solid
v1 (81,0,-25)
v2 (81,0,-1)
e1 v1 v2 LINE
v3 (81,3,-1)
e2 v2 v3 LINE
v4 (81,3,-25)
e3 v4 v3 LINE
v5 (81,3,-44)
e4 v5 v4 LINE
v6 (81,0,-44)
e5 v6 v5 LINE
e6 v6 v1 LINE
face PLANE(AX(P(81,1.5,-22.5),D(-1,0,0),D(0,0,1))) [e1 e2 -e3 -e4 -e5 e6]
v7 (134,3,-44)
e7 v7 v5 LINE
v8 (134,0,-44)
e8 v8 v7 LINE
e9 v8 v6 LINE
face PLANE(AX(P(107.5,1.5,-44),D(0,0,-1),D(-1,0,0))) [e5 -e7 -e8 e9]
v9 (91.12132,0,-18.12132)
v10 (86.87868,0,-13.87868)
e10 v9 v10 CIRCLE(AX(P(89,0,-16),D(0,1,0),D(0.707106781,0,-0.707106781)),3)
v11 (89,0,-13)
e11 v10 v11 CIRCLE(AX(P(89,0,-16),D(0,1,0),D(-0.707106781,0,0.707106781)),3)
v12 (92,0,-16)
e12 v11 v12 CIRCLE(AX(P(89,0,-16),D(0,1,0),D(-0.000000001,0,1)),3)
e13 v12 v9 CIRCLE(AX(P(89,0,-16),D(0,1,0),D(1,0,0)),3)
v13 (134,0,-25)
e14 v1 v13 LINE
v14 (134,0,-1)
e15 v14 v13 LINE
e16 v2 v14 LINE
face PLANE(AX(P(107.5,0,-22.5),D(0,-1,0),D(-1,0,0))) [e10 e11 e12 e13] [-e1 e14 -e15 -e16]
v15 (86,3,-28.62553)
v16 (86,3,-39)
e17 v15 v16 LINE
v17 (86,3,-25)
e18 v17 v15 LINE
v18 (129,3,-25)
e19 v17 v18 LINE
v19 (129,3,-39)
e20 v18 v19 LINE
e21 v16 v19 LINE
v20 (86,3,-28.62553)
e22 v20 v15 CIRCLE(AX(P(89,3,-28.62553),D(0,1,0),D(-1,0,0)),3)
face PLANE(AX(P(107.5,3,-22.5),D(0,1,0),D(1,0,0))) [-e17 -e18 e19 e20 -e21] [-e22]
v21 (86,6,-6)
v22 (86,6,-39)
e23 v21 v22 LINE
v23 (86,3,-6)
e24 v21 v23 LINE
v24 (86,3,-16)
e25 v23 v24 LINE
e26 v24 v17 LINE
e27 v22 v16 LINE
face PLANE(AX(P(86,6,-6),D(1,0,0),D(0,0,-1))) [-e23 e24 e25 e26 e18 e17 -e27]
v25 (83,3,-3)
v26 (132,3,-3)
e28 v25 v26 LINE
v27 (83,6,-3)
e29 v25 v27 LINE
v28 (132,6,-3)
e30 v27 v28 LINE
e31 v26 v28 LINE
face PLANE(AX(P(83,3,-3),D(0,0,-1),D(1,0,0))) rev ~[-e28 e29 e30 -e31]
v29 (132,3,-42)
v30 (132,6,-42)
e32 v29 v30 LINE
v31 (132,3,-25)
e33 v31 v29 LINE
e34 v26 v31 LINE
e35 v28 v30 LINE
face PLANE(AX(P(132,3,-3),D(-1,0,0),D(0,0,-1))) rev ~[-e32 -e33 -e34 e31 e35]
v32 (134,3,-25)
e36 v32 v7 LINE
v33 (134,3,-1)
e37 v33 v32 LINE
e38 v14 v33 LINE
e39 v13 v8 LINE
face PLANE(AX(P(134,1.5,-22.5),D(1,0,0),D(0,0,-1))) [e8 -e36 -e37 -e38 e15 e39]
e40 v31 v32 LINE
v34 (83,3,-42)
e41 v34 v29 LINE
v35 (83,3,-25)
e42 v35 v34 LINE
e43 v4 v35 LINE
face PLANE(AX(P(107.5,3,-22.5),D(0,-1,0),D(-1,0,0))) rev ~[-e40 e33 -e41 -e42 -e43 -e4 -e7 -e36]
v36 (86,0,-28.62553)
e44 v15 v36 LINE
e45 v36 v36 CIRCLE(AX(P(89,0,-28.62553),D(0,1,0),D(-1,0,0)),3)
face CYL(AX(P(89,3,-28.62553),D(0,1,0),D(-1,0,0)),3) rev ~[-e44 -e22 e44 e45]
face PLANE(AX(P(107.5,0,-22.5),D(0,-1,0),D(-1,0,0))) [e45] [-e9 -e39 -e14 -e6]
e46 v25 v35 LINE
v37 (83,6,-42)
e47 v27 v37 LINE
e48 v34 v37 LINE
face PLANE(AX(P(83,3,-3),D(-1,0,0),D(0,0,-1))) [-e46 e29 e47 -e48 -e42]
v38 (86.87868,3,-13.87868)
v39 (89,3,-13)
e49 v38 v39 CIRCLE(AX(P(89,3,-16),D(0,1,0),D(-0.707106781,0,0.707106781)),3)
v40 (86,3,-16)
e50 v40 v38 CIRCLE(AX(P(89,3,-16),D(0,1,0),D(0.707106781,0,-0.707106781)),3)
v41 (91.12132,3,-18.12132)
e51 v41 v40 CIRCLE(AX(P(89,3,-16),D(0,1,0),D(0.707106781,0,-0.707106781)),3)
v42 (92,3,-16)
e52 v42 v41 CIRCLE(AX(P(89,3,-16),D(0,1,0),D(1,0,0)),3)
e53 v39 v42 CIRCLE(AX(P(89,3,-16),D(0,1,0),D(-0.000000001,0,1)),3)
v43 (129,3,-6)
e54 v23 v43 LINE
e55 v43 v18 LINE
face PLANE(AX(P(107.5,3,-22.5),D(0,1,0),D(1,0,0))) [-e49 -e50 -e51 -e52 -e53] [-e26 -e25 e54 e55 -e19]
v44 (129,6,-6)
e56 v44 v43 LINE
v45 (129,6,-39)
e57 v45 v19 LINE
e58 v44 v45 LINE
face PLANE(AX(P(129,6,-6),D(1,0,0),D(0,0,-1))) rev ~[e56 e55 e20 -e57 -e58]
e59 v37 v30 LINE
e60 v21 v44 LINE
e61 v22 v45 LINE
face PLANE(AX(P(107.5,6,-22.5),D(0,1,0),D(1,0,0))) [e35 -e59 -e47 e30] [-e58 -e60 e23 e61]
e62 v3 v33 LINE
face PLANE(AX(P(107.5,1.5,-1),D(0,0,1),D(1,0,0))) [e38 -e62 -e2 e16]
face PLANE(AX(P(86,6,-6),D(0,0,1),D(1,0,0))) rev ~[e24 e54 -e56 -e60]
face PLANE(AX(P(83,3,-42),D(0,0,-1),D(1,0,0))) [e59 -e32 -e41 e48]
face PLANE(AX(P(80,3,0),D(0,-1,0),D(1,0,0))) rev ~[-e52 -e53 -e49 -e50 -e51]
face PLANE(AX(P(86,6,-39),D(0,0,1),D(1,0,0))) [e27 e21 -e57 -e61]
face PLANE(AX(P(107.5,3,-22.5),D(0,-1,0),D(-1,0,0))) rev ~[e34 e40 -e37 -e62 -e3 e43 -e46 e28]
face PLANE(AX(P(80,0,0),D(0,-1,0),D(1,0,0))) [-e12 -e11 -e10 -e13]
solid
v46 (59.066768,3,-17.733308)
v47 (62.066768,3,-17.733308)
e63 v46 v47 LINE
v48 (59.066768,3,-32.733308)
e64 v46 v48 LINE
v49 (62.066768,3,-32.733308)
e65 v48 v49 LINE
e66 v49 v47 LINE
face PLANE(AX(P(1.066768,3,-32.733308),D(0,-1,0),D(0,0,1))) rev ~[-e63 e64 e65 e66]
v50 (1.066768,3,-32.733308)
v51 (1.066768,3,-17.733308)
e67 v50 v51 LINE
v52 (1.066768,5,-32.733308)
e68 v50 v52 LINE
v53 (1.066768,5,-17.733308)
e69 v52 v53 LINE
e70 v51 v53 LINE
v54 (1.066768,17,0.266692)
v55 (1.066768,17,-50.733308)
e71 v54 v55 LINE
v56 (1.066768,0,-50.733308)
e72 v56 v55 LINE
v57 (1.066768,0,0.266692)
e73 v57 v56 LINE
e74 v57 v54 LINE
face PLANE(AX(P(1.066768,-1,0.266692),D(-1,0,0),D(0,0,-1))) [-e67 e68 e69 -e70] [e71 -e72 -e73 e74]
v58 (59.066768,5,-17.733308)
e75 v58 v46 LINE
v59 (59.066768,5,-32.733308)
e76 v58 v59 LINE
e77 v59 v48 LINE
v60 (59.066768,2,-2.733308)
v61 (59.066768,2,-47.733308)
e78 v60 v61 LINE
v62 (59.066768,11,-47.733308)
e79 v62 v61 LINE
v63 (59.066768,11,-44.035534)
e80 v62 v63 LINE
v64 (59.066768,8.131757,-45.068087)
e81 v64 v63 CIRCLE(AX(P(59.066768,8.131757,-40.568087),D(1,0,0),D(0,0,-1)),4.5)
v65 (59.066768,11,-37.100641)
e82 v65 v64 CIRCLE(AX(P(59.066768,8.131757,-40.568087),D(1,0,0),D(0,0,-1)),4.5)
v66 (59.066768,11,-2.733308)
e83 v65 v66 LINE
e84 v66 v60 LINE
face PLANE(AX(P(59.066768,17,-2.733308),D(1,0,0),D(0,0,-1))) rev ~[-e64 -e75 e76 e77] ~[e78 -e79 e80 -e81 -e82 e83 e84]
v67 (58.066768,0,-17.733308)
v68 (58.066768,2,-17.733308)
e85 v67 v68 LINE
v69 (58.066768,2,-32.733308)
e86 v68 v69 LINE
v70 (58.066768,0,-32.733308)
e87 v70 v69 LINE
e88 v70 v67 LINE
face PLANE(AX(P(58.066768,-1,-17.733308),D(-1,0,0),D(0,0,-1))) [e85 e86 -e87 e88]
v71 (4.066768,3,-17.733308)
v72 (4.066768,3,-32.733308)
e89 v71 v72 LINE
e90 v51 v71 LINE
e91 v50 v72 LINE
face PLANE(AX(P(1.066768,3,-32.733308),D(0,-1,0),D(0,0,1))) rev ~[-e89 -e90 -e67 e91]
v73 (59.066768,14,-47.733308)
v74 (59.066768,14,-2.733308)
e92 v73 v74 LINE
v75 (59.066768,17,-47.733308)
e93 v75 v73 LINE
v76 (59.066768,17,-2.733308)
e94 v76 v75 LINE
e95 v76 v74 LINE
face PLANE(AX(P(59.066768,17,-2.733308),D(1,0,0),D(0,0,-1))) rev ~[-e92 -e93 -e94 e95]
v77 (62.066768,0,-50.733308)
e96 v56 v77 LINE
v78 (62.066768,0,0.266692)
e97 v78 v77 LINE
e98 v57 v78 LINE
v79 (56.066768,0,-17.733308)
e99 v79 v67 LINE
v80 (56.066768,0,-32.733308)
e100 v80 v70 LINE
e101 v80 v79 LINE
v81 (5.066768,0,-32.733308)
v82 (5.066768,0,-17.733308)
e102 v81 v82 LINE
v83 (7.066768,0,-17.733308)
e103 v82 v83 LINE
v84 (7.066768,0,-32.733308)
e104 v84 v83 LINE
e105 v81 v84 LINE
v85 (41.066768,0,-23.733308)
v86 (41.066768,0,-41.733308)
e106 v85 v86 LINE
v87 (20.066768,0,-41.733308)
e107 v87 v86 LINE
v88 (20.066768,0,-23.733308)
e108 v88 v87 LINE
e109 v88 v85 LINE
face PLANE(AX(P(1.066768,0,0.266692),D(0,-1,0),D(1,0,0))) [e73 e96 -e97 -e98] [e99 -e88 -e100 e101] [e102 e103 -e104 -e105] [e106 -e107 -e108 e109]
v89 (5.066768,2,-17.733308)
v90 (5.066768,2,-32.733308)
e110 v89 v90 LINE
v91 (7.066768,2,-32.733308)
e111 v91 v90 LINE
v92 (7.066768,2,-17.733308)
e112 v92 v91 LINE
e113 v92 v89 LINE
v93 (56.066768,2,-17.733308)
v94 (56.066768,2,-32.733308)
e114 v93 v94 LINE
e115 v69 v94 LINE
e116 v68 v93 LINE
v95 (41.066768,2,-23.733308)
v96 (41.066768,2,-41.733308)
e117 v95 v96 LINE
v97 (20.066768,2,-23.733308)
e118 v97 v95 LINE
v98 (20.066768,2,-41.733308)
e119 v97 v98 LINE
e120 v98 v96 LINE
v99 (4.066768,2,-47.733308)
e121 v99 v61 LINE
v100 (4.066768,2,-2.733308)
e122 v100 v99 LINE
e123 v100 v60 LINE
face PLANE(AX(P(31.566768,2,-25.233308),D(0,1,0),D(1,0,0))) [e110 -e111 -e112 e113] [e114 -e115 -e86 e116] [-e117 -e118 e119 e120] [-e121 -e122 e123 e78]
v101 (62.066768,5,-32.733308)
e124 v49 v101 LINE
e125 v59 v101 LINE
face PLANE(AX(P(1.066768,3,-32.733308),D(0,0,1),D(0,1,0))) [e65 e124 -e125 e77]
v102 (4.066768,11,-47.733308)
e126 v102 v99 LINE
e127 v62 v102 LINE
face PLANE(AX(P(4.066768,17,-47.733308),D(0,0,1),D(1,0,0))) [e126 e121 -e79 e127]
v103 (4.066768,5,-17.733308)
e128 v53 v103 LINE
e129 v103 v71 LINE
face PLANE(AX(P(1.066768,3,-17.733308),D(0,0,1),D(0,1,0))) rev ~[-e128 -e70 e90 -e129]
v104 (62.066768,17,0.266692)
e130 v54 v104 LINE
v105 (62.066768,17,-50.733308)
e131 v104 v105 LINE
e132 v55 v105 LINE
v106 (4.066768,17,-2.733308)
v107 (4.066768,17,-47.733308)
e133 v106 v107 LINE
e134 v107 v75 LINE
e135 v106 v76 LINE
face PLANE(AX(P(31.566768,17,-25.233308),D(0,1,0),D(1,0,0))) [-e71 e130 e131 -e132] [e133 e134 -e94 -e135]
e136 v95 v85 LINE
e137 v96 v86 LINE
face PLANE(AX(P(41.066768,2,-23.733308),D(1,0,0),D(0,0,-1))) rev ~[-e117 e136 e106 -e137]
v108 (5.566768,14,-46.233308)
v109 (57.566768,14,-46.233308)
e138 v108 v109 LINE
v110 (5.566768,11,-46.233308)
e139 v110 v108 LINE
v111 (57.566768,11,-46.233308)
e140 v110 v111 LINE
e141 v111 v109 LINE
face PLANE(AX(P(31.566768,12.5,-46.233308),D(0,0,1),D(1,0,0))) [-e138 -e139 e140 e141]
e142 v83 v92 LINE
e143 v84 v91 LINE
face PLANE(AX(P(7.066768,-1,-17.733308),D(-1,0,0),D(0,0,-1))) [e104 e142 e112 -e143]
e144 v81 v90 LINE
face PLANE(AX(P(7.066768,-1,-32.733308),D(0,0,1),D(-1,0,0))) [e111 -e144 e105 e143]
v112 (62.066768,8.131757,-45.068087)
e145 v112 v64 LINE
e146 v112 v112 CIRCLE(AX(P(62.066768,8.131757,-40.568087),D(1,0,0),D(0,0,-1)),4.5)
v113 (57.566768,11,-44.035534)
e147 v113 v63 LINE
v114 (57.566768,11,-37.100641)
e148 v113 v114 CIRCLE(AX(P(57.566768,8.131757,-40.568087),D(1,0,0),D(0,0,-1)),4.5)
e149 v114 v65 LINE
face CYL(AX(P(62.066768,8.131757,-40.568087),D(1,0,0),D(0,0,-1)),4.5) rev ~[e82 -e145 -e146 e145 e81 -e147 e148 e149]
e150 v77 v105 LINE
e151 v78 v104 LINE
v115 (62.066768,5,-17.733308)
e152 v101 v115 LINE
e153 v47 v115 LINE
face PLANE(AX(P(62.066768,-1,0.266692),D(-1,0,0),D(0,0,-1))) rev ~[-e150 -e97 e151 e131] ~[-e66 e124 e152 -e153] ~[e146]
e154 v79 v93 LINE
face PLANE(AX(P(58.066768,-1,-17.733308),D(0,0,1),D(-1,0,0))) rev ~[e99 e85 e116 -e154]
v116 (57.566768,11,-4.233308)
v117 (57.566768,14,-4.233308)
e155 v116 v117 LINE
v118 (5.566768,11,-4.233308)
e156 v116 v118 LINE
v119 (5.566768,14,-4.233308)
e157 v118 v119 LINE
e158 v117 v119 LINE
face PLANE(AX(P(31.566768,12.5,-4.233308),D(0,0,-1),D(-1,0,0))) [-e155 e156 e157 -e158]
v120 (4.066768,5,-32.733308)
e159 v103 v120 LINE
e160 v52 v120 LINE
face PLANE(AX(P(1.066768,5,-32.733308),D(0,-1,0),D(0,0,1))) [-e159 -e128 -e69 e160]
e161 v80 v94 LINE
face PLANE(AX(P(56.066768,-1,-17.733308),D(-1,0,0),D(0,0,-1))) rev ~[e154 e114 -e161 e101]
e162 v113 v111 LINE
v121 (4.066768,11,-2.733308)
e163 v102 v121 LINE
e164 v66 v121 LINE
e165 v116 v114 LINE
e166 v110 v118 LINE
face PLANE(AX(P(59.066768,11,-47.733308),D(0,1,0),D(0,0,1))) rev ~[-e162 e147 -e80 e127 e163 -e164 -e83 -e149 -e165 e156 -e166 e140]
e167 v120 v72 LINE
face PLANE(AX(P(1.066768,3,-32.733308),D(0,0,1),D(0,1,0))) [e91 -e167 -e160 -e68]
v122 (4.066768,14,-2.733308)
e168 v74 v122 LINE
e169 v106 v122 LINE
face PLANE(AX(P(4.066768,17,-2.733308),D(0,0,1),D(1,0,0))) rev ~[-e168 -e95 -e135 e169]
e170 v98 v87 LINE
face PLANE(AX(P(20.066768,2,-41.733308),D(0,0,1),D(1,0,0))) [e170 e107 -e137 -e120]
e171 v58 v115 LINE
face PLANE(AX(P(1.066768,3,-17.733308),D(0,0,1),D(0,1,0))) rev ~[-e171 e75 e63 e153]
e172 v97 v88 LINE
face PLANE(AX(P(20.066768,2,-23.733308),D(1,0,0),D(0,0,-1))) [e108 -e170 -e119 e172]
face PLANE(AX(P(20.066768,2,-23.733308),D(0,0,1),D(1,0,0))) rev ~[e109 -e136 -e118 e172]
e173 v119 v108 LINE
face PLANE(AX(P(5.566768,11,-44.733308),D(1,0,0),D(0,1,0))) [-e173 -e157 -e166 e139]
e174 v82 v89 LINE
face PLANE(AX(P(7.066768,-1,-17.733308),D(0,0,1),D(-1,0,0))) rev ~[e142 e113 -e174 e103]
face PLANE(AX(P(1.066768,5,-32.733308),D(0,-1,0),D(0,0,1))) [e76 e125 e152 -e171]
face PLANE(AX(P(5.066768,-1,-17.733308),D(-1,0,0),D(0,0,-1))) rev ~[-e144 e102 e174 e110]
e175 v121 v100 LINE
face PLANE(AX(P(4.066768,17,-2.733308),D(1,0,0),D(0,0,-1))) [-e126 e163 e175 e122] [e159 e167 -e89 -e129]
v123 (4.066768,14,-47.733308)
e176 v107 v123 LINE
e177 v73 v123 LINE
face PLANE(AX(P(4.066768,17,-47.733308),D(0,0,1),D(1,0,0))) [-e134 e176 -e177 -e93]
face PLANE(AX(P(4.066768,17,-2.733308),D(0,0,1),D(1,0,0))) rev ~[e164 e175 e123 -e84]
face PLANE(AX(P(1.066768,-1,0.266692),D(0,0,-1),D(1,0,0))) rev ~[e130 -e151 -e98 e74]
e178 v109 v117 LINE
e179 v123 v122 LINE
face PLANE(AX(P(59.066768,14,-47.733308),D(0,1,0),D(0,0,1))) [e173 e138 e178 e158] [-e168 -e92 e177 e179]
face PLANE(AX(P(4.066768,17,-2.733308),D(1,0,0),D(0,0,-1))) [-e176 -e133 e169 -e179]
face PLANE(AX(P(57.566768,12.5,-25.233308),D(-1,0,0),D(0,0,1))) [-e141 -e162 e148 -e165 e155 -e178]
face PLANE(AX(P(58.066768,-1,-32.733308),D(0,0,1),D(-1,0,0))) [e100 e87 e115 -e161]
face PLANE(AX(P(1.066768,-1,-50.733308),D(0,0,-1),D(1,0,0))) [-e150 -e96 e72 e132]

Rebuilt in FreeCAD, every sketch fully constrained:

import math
import FreeCAD as App
import Part
import Sketcher
Q = App.Units.Quantity


def add_polygon(sketch, points):
    """Adds a closed chain of lines whose ends are joined by coincident constraints."""
    first, n = sketch.GeometryCount, len(points)
    for a, b in zip(points, points[1:] + points[:1]):
        sketch.addGeometry(Part.LineSegment(App.Vector(*a, 0), App.Vector(*b, 0)), False)
    for i in range(n):
        sketch.addConstraint(Sketcher.Constraint("Coincident", first + i, 2, first + (i + 1) % n, 1))

doc = App.newDocument("Part")
body = doc.addObject("PartDesign::Body", "Body")

sketch1 = body.newObject("Sketcher::SketchObject", "Sketch")
sketch1.AttachmentSupport = (doc.getObject("XZ_Plane"), [""])
sketch1.MapMode = "FlatFace"
add_polygon(sketch1, [(1, -51), (1, 0), (62, 0), (62, -51)])
sketch1.addConstraint(Sketcher.Constraint("Vertical", 0))
sketch1.addConstraint(Sketcher.Constraint("Horizontal", 1))
sketch1.addConstraint(Sketcher.Constraint("Vertical", 2))
sketch1.addConstraint(Sketcher.Constraint("Horizontal", 3))
sketch1.addConstraint(Sketcher.Constraint("DistanceX", 1, 1, 1, 2, Q("61 mm")))
sketch1.addConstraint(Sketcher.Constraint("DistanceY", 0, 1, 0, 2, Q("51 mm")))
sketch1.addConstraint(Sketcher.Constraint("DistanceY", -1, 1, 0, 2, Q("0.266692 mm")))
sketch1.addConstraint(Sketcher.Constraint("DistanceX", -1, 1, 0, 2, Q("1.066768 mm")))
pad1 = body.newObject("PartDesign::Pad", "Pad")
pad1.Profile = sketch1
pad1.Length = 18
pad1.Reversed = True

sketch2 = body.newObject("Sketcher::SketchObject", "Sketch001")
sketch2.AttachmentSupport = (doc.getObject("XZ_Plane"), [""])
sketch2.MapMode = "FlatFace"
sketch2.AttachmentOffset = App.Placement(App.Vector(0, 0, -18), App.Rotation())
add_polygon(sketch2, [(4, -48), (4, -3), (59, -3), (59, -48)])
sketch2.addConstraint(Sketcher.Constraint("Vertical", 0))
sketch2.addConstraint(Sketcher.Constraint("Horizontal", 1))
sketch2.addConstraint(Sketcher.Constraint("Vertical", 2))
sketch2.addConstraint(Sketcher.Constraint("Horizontal", 3))
sketch2.addConstraint(Sketcher.Constraint("DistanceX", 1, 1, 1, 2, Q("55 mm")))
sketch2.addConstraint(Sketcher.Constraint("DistanceY", 0, 1, 0, 2, Q("45 mm")))
sketch2.addConstraint(Sketcher.Constraint("DistanceY", 0, 2, -1, 1, Q("2.733308 mm")))
sketch2.addConstraint(Sketcher.Constraint("DistanceX", -1, 1, 0, 2, Q("4.066768 mm")))
pocket1 = body.newObject("PartDesign::Pocket", "Pocket")
pocket1.Profile = sketch2
pocket1.Length = 15
pocket1.Reversed = True

sketch3 = body.newObject("Sketcher::SketchObject", "Sketch002")
sketch3.AttachmentSupport = (doc.getObject("YZ_Plane"), [""])
sketch3.MapMode = "FlatFace"
sketch3.AttachmentOffset = App.Placement(App.Vector(0, 0, 59.066768), App.Rotation())
add_polygon(sketch3, [(15, -47.7), (12, -47.7), (12, -2.7), (15, -2.7)])
sketch3.addConstraint(Sketcher.Constraint("Horizontal", 0))
sketch3.addConstraint(Sketcher.Constraint("Vertical", 1))
sketch3.addConstraint(Sketcher.Constraint("Horizontal", 2))
sketch3.addConstraint(Sketcher.Constraint("Vertical", 3))
sketch3.addConstraint(Sketcher.Constraint("DistanceX", 0, 2, 0, 1, Q("3 mm")))
sketch3.addConstraint(Sketcher.Constraint("DistanceY", 1, 1, 1, 2, Q("45 mm")))
sketch3.addConstraint(Sketcher.Constraint("DistanceX", -1, 1, 0, 2, Q("12 mm")))
sketch3.addConstraint(Sketcher.Constraint("DistanceY", 0, 2, -1, 1, Q("47.733308 mm")))
pad2 = body.newObject("PartDesign::Pad", "Pad001")
pad2.Profile = sketch3
pad2.Length = 55
pad2.Reversed = True

sketch4 = body.newObject("Sketcher::SketchObject", "Sketch003")
sketch4.AttachmentSupport = (doc.getObject("XZ_Plane"), [""])
sketch4.MapMode = "FlatFace"
sketch4.AttachmentOffset = App.Placement(App.Vector(0, 0, -15), App.Rotation())
add_polygon(sketch4, [(7, -45), (7, -6), (56, -6), (56, -45)])
sketch4.addConstraint(Sketcher.Constraint("Vertical", 0))
sketch4.addConstraint(Sketcher.Constraint("Horizontal", 1))
sketch4.addConstraint(Sketcher.Constraint("Vertical", 2))
sketch4.addConstraint(Sketcher.Constraint("Horizontal", 3))
sketch4.addConstraint(Sketcher.Constraint("DistanceX", 1, 1, 1, 2, Q("49 mm")))
sketch4.addConstraint(Sketcher.Constraint("DistanceY", 0, 1, 0, 2, Q("39 mm")))
sketch4.addConstraint(Sketcher.Constraint("DistanceY", 0, 2, -1, 1, Q("5.733308 mm")))
sketch4.addConstraint(Sketcher.Constraint("DistanceX", -1, 1, 0, 2, Q("7.066768 mm")))
pocket2 = body.newObject("PartDesign::Pocket", "Pocket001")
pocket2.Profile = sketch4
pocket2.Length = 3
pocket2.Reversed = True

sketch5 = body.newObject("Sketcher::SketchObject", "Sketch004")
sketch5.AttachmentSupport = (doc.getObject("XZ_Plane"), [""])
sketch5.MapMode = "FlatFace"
sketch5.AttachmentOffset = App.Placement(App.Vector(0, 0, -3), App.Rotation())
add_polygon(sketch5, [(20, -42), (20, -24), (41, -24), (41, -42)])
sketch5.addConstraint(Sketcher.Constraint("Vertical", 0))
sketch5.addConstraint(Sketcher.Constraint("Horizontal", 1))
sketch5.addConstraint(Sketcher.Constraint("Vertical", 2))
sketch5.addConstraint(Sketcher.Constraint("Horizontal", 3))
sketch5.addConstraint(Sketcher.Constraint("DistanceX", 1, 1, 1, 2, Q("21 mm")))
sketch5.addConstraint(Sketcher.Constraint("DistanceY", 0, 1, 0, 2, Q("18 mm")))
sketch5.addConstraint(Sketcher.Constraint("DistanceY", 0, 2, -1, 1, Q("23.733308 mm")))
sketch5.addConstraint(Sketcher.Constraint("DistanceX", -1, 1, 0, 2, Q("20.066768 mm")))
pocket3 = body.newObject("PartDesign::Pocket", "Pocket002")
pocket3.Profile = sketch5
pocket3.Length = 3
pocket3.Reversed = True

sketch6 = body.newObject("Sketcher::SketchObject", "Sketch005")
sketch6.AttachmentSupport = (doc.getObject("YZ_Plane"), [""])
sketch6.MapMode = "FlatFace"
sketch6.AttachmentOffset = App.Placement(App.Vector(0, 0, 1.066768), App.Rotation())
add_polygon(sketch6, [(6, -32.7), (4, -32.7), (4, -17.7), (6, -17.7)])
sketch6.addConstraint(Sketcher.Constraint("Horizontal", 0))
sketch6.addConstraint(Sketcher.Constraint("Vertical", 1))
sketch6.addConstraint(Sketcher.Constraint("Horizontal", 2))
sketch6.addConstraint(Sketcher.Constraint("Vertical", 3))
sketch6.addConstraint(Sketcher.Constraint("DistanceX", 0, 2, 0, 1, Q("2 mm")))
sketch6.addConstraint(Sketcher.Constraint("DistanceY", 1, 1, 1, 2, Q("15 mm")))
sketch6.addConstraint(Sketcher.Constraint("DistanceX", -1, 1, 0, 2, Q("4 mm")))
sketch6.addConstraint(Sketcher.Constraint("DistanceY", 0, 2, -1, 1, Q("32.733308 mm")))
pocket4 = body.newObject("PartDesign::Pocket", "Pocket003")
pocket4.Profile = sketch6
pocket4.Length = 61
pocket4.Reversed = True

sketch7 = body.newObject("Sketcher::SketchObject", "Sketch006")
sketch7.AttachmentSupport = (doc.getObject("XZ_Plane"), [""])
sketch7.MapMode = "FlatFace"
add_polygon(sketch7, [(7.1, -32.7), (7.1, -17.7), (5.1, -17.7), (5.1, -32.7)])
sketch7.addConstraint(Sketcher.Constraint("Vertical", 0))
sketch7.addConstraint(Sketcher.Constraint("Horizontal", 1))
sketch7.addConstraint(Sketcher.Constraint("Vertical", 2))
sketch7.addConstraint(Sketcher.Constraint("Horizontal", 3))
sketch7.addConstraint(Sketcher.Constraint("DistanceX", 1, 2, 1, 1, Q("2 mm")))
sketch7.addConstraint(Sketcher.Constraint("DistanceY", 0, 1, 0, 2, Q("15 mm")))
sketch7.addConstraint(Sketcher.Constraint("DistanceY", 0, 2, -1, 1, Q("17.733308 mm")))
sketch7.addConstraint(Sketcher.Constraint("DistanceX", -1, 1, 0, 2, Q("7.066768 mm")))
pocket5 = body.newObject("PartDesign::Pocket", "Pocket004")
pocket5.Profile = sketch7
pocket5.Length = 3

sketch8 = body.newObject("Sketcher::SketchObject", "Sketch007")
sketch8.AttachmentSupport = (doc.getObject("XZ_Plane"), [""])
sketch8.MapMode = "FlatFace"
add_polygon(sketch8, [(58.1, -32.7), (58.1, -17.7), (56.1, -17.7), (56.1, -32.7)])
sketch8.addConstraint(Sketcher.Constraint("Vertical", 0))
sketch8.addConstraint(Sketcher.Constraint("Horizontal", 1))
sketch8.addConstraint(Sketcher.Constraint("Vertical", 2))
sketch8.addConstraint(Sketcher.Constraint("Horizontal", 3))
sketch8.addConstraint(Sketcher.Constraint("DistanceX", 1, 2, 1, 1, Q("2 mm")))
sketch8.addConstraint(Sketcher.Constraint("DistanceY", 0, 1, 0, 2, Q("15 mm")))
sketch8.addConstraint(Sketcher.Constraint("DistanceY", 0, 2, -1, 1, Q("17.733308 mm")))
sketch8.addConstraint(Sketcher.Constraint("DistanceX", -1, 1, 0, 2, Q("58.066768 mm")))
pocket6 = body.newObject("PartDesign::Pocket", "Pocket005")
pocket6.Profile = sketch8
pocket6.Length = 3

sketch9 = body.newObject("Sketcher::SketchObject", "Sketch008")
sketch9.AttachmentSupport = (doc.getObject("YZ_Plane"), [""])
sketch9.MapMode = "FlatFace"
sketch9.AttachmentOffset = App.Placement(App.Vector(0, 0, 62.066768), App.Rotation())
sketch9.addGeometry(Part.Circle(App.Vector(9.1, -40.6, 0), App.Vector(0, 0, 1), 4.5), False)
sketch9.addConstraint(Sketcher.Constraint("Diameter", 0, Q("9 mm")))
sketch9.addConstraint(Sketcher.Constraint("DistanceX", -1, 1, 0, 3, Q("9.131757 mm")))
sketch9.addConstraint(Sketcher.Constraint("DistanceY", 0, 3, -1, 1, Q("40.568087 mm")))
pocket7 = body.newObject("PartDesign::Pocket", "Pocket006")
pocket7.Profile = sketch9
pocket7.Length = 6

sketch10 = body.newObject("Sketcher::SketchObject", "Sketch009")
sketch10.AttachmentSupport = (doc.getObject("XY_Plane"), [""])
sketch10.MapMode = "FlatFace"
sketch10.AttachmentOffset = App.Placement(App.Vector(0, 0, 0.266692), App.Rotation())
add_polygon(sketch10, [(1.1, 1), (1.1, 0), (62.1, 0), (62.1, 1)])
sketch10.addConstraint(Sketcher.Constraint("Vertical", 0))
sketch10.addConstraint(Sketcher.Constraint("Horizontal", 1))
sketch10.addConstraint(Sketcher.Constraint("Vertical", 2))
sketch10.addConstraint(Sketcher.Constraint("Horizontal", 3))
sketch10.addConstraint(Sketcher.Constraint("PointOnObject", 0, 2, -1))
sketch10.addConstraint(Sketcher.Constraint("DistanceX", 1, 1, 1, 2, Q("61 mm")))
sketch10.addConstraint(Sketcher.Constraint("DistanceY", 0, 2, 0, 1, Q("1 mm")))
sketch10.addConstraint(Sketcher.Constraint("DistanceX", -1, 1, 0, 2, Q("1.066768 mm")))
pocket8 = body.newObject("PartDesign::Pocket", "Pocket007")
pocket8.Profile = sketch10
pocket8.Length = 51
body2 = doc.addObject("PartDesign::Body", "Body001")

sketch11 = body2.newObject("Sketcher::SketchObject", "Sketch010")
sketch11.AttachmentSupport = (doc.getObject("XZ_Plane001"), [""])
sketch11.MapMode = "FlatFace"
add_polygon(sketch11, [(135, -45), (135, 0), (80, 0), (80, -45)])
sketch11.addConstraint(Sketcher.Constraint("Vertical", 0))
sketch11.addConstraint(Sketcher.Constraint("Horizontal", 1))
sketch11.addConstraint(Sketcher.Constraint("Vertical", 2))
sketch11.addConstraint(Sketcher.Constraint("Horizontal", 3))
sketch11.addConstraint(Sketcher.Constraint("PointOnObject", 0, 2, -1))
sketch11.addConstraint(Sketcher.Constraint("DistanceX", 1, 2, 1, 1, Q("55 mm")))
sketch11.addConstraint(Sketcher.Constraint("DistanceY", 0, 1, 0, 2, Q("45 mm")))
sketch11.addConstraint(Sketcher.Constraint("DistanceX", -1, 1, 0, 2, Q("135 mm")))
pad3 = body2.newObject("PartDesign::Pad", "Pad002")
pad3.Profile = sketch11
pad3.Length = 3
pad3.Reversed = True

sketch12 = body2.newObject("Sketcher::SketchObject", "Sketch011")
sketch12.AttachmentSupport = (doc.getObject("XZ_Plane001"), [""])
sketch12.MapMode = "FlatFace"
sketch12.AttachmentOffset = App.Placement(App.Vector(0, 0, -3), App.Rotation())
add_polygon(sketch12, [(83, -42), (83, -3), (132, -3), (132, -42)])
sketch12.addConstraint(Sketcher.Constraint("Vertical", 0))
sketch12.addConstraint(Sketcher.Constraint("Horizontal", 1))
sketch12.addConstraint(Sketcher.Constraint("Vertical", 2))
sketch12.addConstraint(Sketcher.Constraint("Horizontal", 3))
sketch12.addConstraint(Sketcher.Constraint("DistanceX", 1, 1, 1, 2, Q("49 mm")))
sketch12.addConstraint(Sketcher.Constraint("DistanceY", 0, 1, 0, 2, Q("39 mm")))
sketch12.addConstraint(Sketcher.Constraint("DistanceX", -1, 1, 0, 2, Q("83 mm")))
sketch12.addConstraint(Sketcher.Constraint("DistanceY", 0, 2, -1, 1, Q("3 mm")))
pad4 = body2.newObject("PartDesign::Pad", "Pad003")
pad4.Profile = sketch12
pad4.Length = 3
pad4.Reversed = True

sketch13 = body2.newObject("Sketcher::SketchObject", "Sketch012")
sketch13.AttachmentSupport = (doc.getObject("XZ_Plane001"), [""])
sketch13.MapMode = "FlatFace"
sketch13.AttachmentOffset = App.Placement(App.Vector(0, 0, -6), App.Rotation())
add_polygon(sketch13, [(86, -39), (86, -6), (129, -6), (129, -39)])
sketch13.addConstraint(Sketcher.Constraint("Vertical", 0))
sketch13.addConstraint(Sketcher.Constraint("Horizontal", 1))
sketch13.addConstraint(Sketcher.Constraint("Vertical", 2))
sketch13.addConstraint(Sketcher.Constraint("Horizontal", 3))
sketch13.addConstraint(Sketcher.Constraint("DistanceX", 1, 1, 1, 2, Q("43 mm")))
sketch13.addConstraint(Sketcher.Constraint("DistanceY", 0, 1, 0, 2, Q("33 mm")))
sketch13.addConstraint(Sketcher.Constraint("DistanceX", -1, 1, 0, 2, Q("86 mm")))
sketch13.addConstraint(Sketcher.Constraint("DistanceY", 0, 2, -1, 1, Q("6 mm")))
pocket9 = body2.newObject("PartDesign::Pocket", "Pocket008")
pocket9.Profile = sketch13
pocket9.Length = 3
pocket9.Reversed = True

sketch14 = body2.newObject("Sketcher::SketchObject", "Sketch013")
sketch14.AttachmentSupport = (doc.getObject("XZ_Plane001"), [""])
sketch14.MapMode = "FlatFace"
sketch14.AttachmentOffset = App.Placement(App.Vector(0, 0, -3), App.Rotation())
sketch14.addGeometry(Part.ArcOfCircle(Part.Circle(App.Vector(89, -16, 0), App.Vector(0, 0, 1), 3), math.radians(0), math.radians(90)), False)
sketch14.addGeometry(Part.ArcOfCircle(Part.Circle(App.Vector(89, -16, 0), App.Vector(0, 0, 1), 3), math.radians(-45), math.radians(0)), False)
sketch14.addGeometry(Part.ArcOfCircle(Part.Circle(App.Vector(89, -16, 0), App.Vector(0, 0, 1), 3), math.radians(135), math.radians(315)), False)
sketch14.addGeometry(Part.ArcOfCircle(Part.Circle(App.Vector(89, -16, 0), App.Vector(0, 0, 1), 3), math.radians(90), math.radians(135)), False)
sketch14.addConstraint(Sketcher.Constraint("Tangent", 0, 1, 1, 2))
sketch14.addConstraint(Sketcher.Constraint("Tangent", 1, 1, 2, 2))
sketch14.addConstraint(Sketcher.Constraint("Tangent", 2, 1, 3, 2))
sketch14.addConstraint(Sketcher.Constraint("Tangent", 3, 1, 0, 2))
sketch14.addConstraint(Sketcher.Constraint("Equal", 0, 1))
sketch14.addConstraint(Sketcher.Constraint("Horizontal", 3, 3, 0, 1))
sketch14.addConstraint(Sketcher.Constraint("Vertical", 2, 3, 3, 1))
sketch14.addConstraint(Sketcher.Constraint("Radius", 0, Q("3 mm")))
sketch14.addConstraint(Sketcher.Constraint("DistanceX", -1, 1, 0, 3, Q("89 mm")))
sketch14.addConstraint(Sketcher.Constraint("DistanceY", 0, 3, -1, 1, Q("16 mm")))
sketch14.addConstraint(Sketcher.Constraint("DistanceX", -1, 1, 1, 1, Q("91.12132 mm")))
sketch14.addConstraint(Sketcher.Constraint("DistanceX", -1, 1, 2, 1, Q("86.87868 mm")))
pocket10 = body2.newObject("PartDesign::Pocket", "Pocket009")
pocket10.Profile = sketch14
pocket10.Length = 3
pocket10.Reversed = True

sketch15 = body2.newObject("Sketcher::SketchObject", "Sketch014")
sketch15.AttachmentSupport = (doc.getObject("XZ_Plane001"), [""])
sketch15.MapMode = "FlatFace"
sketch15.AttachmentOffset = App.Placement(App.Vector(0, 0, -3), App.Rotation())
sketch15.addGeometry(Part.Circle(App.Vector(89, -28.6, 0), App.Vector(0, 0, 1), 3), False)
sketch15.addConstraint(Sketcher.Constraint("Diameter", 0, Q("6 mm")))
sketch15.addConstraint(Sketcher.Constraint("DistanceX", -1, 1, 0, 3, Q("89 mm")))
sketch15.addConstraint(Sketcher.Constraint("DistanceY", 0, 3, -1, 1, Q("28.62553 mm")))
pocket11 = body2.newObject("PartDesign::Pocket", "Pocket010")
pocket11.Profile = sketch15
pocket11.Length = 10
pocket11.Reversed = True

sketch16 = body2.newObject("Sketcher::SketchObject", "Sketch015")
sketch16.AttachmentSupport = (doc.getObject("XY_Plane001"), [""])
sketch16.MapMode = "FlatFace"
add_polygon(sketch16, [(80, 3), (80, 0), (135, 0), (135, 3)])
sketch16.addConstraint(Sketcher.Constraint("Vertical", 0))
sketch16.addConstraint(Sketcher.Constraint("Horizontal", 1))
sketch16.addConstraint(Sketcher.Constraint("Vertical", 2))
sketch16.addConstraint(Sketcher.Constraint("Horizontal", 3))
sketch16.addConstraint(Sketcher.Constraint("PointOnObject", 0, 2, -1))
sketch16.addConstraint(Sketcher.Constraint("DistanceX", 1, 1, 1, 2, Q("55 mm")))
sketch16.addConstraint(Sketcher.Constraint("DistanceY", 0, 2, 0, 1, Q("3 mm")))
sketch16.addConstraint(Sketcher.Constraint("DistanceX", -1, 1, 0, 2, Q("80 mm")))
pad5 = body2.newObject("PartDesign::Pad", "Pad004")
pad5.Profile = sketch16
pad5.Length = 25
pad5.Reversed = True

sketch17 = body2.newObject("Sketcher::SketchObject", "Sketch016")
sketch17.AttachmentSupport = (doc.getObject("YZ_Plane001"), [""])
sketch17.MapMode = "FlatFace"
sketch17.AttachmentOffset = App.Placement(App.Vector(0, 0, 80), App.Rotation())
add_polygon(sketch17, [(3, -45), (0, -45), (0, 0), (3, 0)])
sketch17.addConstraint(Sketcher.Constraint("Horizontal", 0))
sketch17.addConstraint(Sketcher.Constraint("Vertical", 1))
sketch17.addConstraint(Sketcher.Constraint("Horizontal", 2))
sketch17.addConstraint(Sketcher.Constraint("Vertical", 3))
sketch17.addConstraint(Sketcher.Constraint("Coincident", 1, 2, -1, 1))
sketch17.addConstraint(Sketcher.Constraint("DistanceX", 0, 2, 0, 1, Q("3 mm")))
sketch17.addConstraint(Sketcher.Constraint("DistanceY", 1, 1, 1, 2, Q("45 mm")))
pocket12 = body2.newObject("PartDesign::Pocket", "Pocket011")
pocket12.Profile = sketch17
pocket12.Length = 1
pocket12.Reversed = True

sketch18 = body2.newObject("Sketcher::SketchObject", "Sketch017")
sketch18.AttachmentSupport = (doc.getObject("YZ_Plane001"), [""])
sketch18.MapMode = "FlatFace"
sketch18.AttachmentOffset = App.Placement(App.Vector(0, 0, 135), App.Rotation())
add_polygon(sketch18, [(3, 0), (0, 0), (0, -45), (3, -45)])
sketch18.addConstraint(Sketcher.Constraint("Horizontal", 0))
sketch18.addConstraint(Sketcher.Constraint("Vertical", 1))
sketch18.addConstraint(Sketcher.Constraint("Horizontal", 2))
sketch18.addConstraint(Sketcher.Constraint("Vertical", 3))
sketch18.addConstraint(Sketcher.Constraint("Coincident", 0, 2, -1, 1))
sketch18.addConstraint(Sketcher.Constraint("DistanceX", 0, 2, 0, 1, Q("3 mm")))
sketch18.addConstraint(Sketcher.Constraint("DistanceY", 1, 2, 1, 1, Q("45 mm")))
pocket13 = body2.newObject("PartDesign::Pocket", "Pocket012")
pocket13.Profile = sketch18
pocket13.Length = 1

sketch19 = body2.newObject("Sketcher::SketchObject", "Sketch018")
sketch19.AttachmentSupport = (doc.getObject("XY_Plane001"), [""])
sketch19.MapMode = "FlatFace"
sketch19.AttachmentOffset = App.Placement(App.Vector(0, 0, -45), App.Rotation())
add_polygon(sketch19, [(134, 3), (134, 0), (81, 0), (81, 3)])
sketch19.addConstraint(Sketcher.Constraint("Vertical", 0))
sketch19.addConstraint(Sketcher.Constraint("Horizontal", 1))
sketch19.addConstraint(Sketcher.Constraint("Vertical", 2))
sketch19.addConstraint(Sketcher.Constraint("Horizontal", 3))
sketch19.addConstraint(Sketcher.Constraint("PointOnObject", 0, 2, -1))
sketch19.addConstraint(Sketcher.Constraint("DistanceX", 1, 2, 1, 1, Q("53 mm")))
sketch19.addConstraint(Sketcher.Constraint("DistanceY", 0, 2, 0, 1, Q("3 mm")))
sketch19.addConstraint(Sketcher.Constraint("DistanceX", -1, 1, 0, 2, Q("134 mm")))
pocket14 = body2.newObject("PartDesign::Pocket", "Pocket013")
pocket14.Profile = sketch19
pocket14.Length = 1
pocket14.Reversed = True

sketch20 = body2.newObject("Sketcher::SketchObject", "Sketch019")
sketch20.AttachmentSupport = (doc.getObject("XY_Plane001"), [""])
sketch20.MapMode = "FlatFace"
add_polygon(sketch20, [(81, 3), (81, 0), (134, 0), (134, 3)])
sketch20.addConstraint(Sketcher.Constraint("Vertical", 0))
sketch20.addConstraint(Sketcher.Constraint("Horizontal", 1))
sketch20.addConstraint(Sketcher.Constraint("Vertical", 2))
sketch20.addConstraint(Sketcher.Constraint("Horizontal", 3))
sketch20.addConstraint(Sketcher.Constraint("PointOnObject", 0, 2, -1))
sketch20.addConstraint(Sketcher.Constraint("DistanceX", 1, 1, 1, 2, Q("53 mm")))
sketch20.addConstraint(Sketcher.Constraint("DistanceY", 0, 2, 0, 1, Q("3 mm")))
sketch20.addConstraint(Sketcher.Constraint("DistanceX", -1, 1, 0, 2, Q("81 mm")))
pocket15 = body2.newObject("PartDesign::Pocket", "Pocket014")
pocket15.Profile = sketch20
pocket15.Length = 1
body3 = doc.addObject("PartDesign::Body", "Body002")
doc.recompute()

body.Placement = App.Placement(App.Vector(0, -1, 0), App.Rotation(App.Vector(0, 0, 1), 0))
boolean = body3.newObject("PartDesign::Boolean", "Boolean")
boolean.Type = "Fuse"
boolean.addObjects([body])

sketch21 = body3.newObject("Sketcher::SketchObject", "Sketch020")
sketch21.AttachmentSupport = (doc.getObject("YZ_Plane002"), [""])
sketch21.MapMode = "FlatFace"
sketch21.AttachmentOffset = App.Placement(App.Vector(0, 0, 7.066768), App.Rotation())
add_polygon(sketch21, [(14, -5.7), (11, -5.7), (11, -44.7), (14, -44.7)])
sketch21.addConstraint(Sketcher.Constraint("Horizontal", 0))
sketch21.addConstraint(Sketcher.Constraint("Vertical", 1))
sketch21.addConstraint(Sketcher.Constraint("Horizontal", 2))
sketch21.addConstraint(Sketcher.Constraint("Vertical", 3))
sketch21.addConstraint(Sketcher.Constraint("DistanceX", 0, 2, 0, 1, Q("3 mm")))
sketch21.addConstraint(Sketcher.Constraint("DistanceY", 1, 2, 1, 1, Q("39 mm")))
sketch21.addConstraint(Sketcher.Constraint("DistanceX", -1, 1, 0, 2, Q("11 mm")))
sketch21.addConstraint(Sketcher.Constraint("DistanceY", 0, 2, -1, 1, Q("5.733308 mm")))
pocket16 = body3.newObject("PartDesign::Pocket", "Pocket015")
pocket16.Profile = sketch21
pocket16.Length = 1.5

sketch22 = body3.newObject("Sketcher::SketchObject", "Sketch021")
sketch22.AttachmentSupport = (doc.getObject("YZ_Plane002"), [""])
sketch22.MapMode = "FlatFace"
sketch22.AttachmentOffset = App.Placement(App.Vector(0, 0, 56.066768), App.Rotation())
add_polygon(sketch22, [(14, -44.7), (11, -44.7), (11, -5.7), (14, -5.7)])
sketch22.addConstraint(Sketcher.Constraint("Horizontal", 0))
sketch22.addConstraint(Sketcher.Constraint("Vertical", 1))
sketch22.addConstraint(Sketcher.Constraint("Horizontal", 2))
sketch22.addConstraint(Sketcher.Constraint("Vertical", 3))
sketch22.addConstraint(Sketcher.Constraint("DistanceX", 0, 2, 0, 1, Q("3 mm")))
sketch22.addConstraint(Sketcher.Constraint("DistanceY", 1, 1, 1, 2, Q("39 mm")))
sketch22.addConstraint(Sketcher.Constraint("DistanceX", -1, 1, 0, 2, Q("11 mm")))
sketch22.addConstraint(Sketcher.Constraint("DistanceY", 0, 2, -1, 1, Q("44.733308 mm")))
pocket17 = body3.newObject("PartDesign::Pocket", "Pocket016")
pocket17.Profile = sketch22
pocket17.Length = 1.5
pocket17.Reversed = True

sketch23 = body3.newObject("Sketcher::SketchObject", "Sketch022")
sketch23.AttachmentSupport = (doc.getObject("XY_Plane002"), [""])
sketch23.MapMode = "FlatFace"
sketch23.AttachmentOffset = App.Placement(App.Vector(0, 0, -5.733308), App.Rotation())
add_polygon(sketch23, [(57.6, 14), (57.6, 11), (5.6, 11), (5.6, 14)])
sketch23.addConstraint(Sketcher.Constraint("Vertical", 0))
sketch23.addConstraint(Sketcher.Constraint("Horizontal", 1))
sketch23.addConstraint(Sketcher.Constraint("Vertical", 2))
sketch23.addConstraint(Sketcher.Constraint("Horizontal", 3))
sketch23.addConstraint(Sketcher.Constraint("DistanceX", 1, 2, 1, 1, Q("52 mm")))
sketch23.addConstraint(Sketcher.Constraint("DistanceY", 0, 2, 0, 1, Q("3 mm")))
sketch23.addConstraint(Sketcher.Constraint("DistanceY", -1, 1, 0, 2, Q("11 mm")))
sketch23.addConstraint(Sketcher.Constraint("DistanceX", -1, 1, 0, 2, Q("57.566768 mm")))
pocket18 = body3.newObject("PartDesign::Pocket", "Pocket017")
pocket18.Profile = sketch23
pocket18.Length = 1.5
pocket18.Reversed = True

sketch24 = body3.newObject("Sketcher::SketchObject", "Sketch023")
sketch24.AttachmentSupport = (doc.getObject("XY_Plane002"), [""])
sketch24.MapMode = "FlatFace"
sketch24.AttachmentOffset = App.Placement(App.Vector(0, 0, -44.733308), App.Rotation())
add_polygon(sketch24, [(5.6, 14), (5.6, 11), (57.6, 11), (57.6, 14)])
sketch24.addConstraint(Sketcher.Constraint("Vertical", 0))
sketch24.addConstraint(Sketcher.Constraint("Horizontal", 1))
sketch24.addConstraint(Sketcher.Constraint("Vertical", 2))
sketch24.addConstraint(Sketcher.Constraint("Horizontal", 3))
sketch24.addConstraint(Sketcher.Constraint("DistanceX", 1, 1, 1, 2, Q("52 mm")))
sketch24.addConstraint(Sketcher.Constraint("DistanceY", 0, 2, 0, 1, Q("3 mm")))
sketch24.addConstraint(Sketcher.Constraint("DistanceY", -1, 1, 0, 2, Q("11 mm")))
sketch24.addConstraint(Sketcher.Constraint("DistanceX", -1, 1, 0, 2, Q("5.566768 mm")))
pocket19 = body3.newObject("PartDesign::Pocket", "Pocket018")
pocket19.Profile = sketch24
pocket19.Length = 1.5

doc.recompute()
